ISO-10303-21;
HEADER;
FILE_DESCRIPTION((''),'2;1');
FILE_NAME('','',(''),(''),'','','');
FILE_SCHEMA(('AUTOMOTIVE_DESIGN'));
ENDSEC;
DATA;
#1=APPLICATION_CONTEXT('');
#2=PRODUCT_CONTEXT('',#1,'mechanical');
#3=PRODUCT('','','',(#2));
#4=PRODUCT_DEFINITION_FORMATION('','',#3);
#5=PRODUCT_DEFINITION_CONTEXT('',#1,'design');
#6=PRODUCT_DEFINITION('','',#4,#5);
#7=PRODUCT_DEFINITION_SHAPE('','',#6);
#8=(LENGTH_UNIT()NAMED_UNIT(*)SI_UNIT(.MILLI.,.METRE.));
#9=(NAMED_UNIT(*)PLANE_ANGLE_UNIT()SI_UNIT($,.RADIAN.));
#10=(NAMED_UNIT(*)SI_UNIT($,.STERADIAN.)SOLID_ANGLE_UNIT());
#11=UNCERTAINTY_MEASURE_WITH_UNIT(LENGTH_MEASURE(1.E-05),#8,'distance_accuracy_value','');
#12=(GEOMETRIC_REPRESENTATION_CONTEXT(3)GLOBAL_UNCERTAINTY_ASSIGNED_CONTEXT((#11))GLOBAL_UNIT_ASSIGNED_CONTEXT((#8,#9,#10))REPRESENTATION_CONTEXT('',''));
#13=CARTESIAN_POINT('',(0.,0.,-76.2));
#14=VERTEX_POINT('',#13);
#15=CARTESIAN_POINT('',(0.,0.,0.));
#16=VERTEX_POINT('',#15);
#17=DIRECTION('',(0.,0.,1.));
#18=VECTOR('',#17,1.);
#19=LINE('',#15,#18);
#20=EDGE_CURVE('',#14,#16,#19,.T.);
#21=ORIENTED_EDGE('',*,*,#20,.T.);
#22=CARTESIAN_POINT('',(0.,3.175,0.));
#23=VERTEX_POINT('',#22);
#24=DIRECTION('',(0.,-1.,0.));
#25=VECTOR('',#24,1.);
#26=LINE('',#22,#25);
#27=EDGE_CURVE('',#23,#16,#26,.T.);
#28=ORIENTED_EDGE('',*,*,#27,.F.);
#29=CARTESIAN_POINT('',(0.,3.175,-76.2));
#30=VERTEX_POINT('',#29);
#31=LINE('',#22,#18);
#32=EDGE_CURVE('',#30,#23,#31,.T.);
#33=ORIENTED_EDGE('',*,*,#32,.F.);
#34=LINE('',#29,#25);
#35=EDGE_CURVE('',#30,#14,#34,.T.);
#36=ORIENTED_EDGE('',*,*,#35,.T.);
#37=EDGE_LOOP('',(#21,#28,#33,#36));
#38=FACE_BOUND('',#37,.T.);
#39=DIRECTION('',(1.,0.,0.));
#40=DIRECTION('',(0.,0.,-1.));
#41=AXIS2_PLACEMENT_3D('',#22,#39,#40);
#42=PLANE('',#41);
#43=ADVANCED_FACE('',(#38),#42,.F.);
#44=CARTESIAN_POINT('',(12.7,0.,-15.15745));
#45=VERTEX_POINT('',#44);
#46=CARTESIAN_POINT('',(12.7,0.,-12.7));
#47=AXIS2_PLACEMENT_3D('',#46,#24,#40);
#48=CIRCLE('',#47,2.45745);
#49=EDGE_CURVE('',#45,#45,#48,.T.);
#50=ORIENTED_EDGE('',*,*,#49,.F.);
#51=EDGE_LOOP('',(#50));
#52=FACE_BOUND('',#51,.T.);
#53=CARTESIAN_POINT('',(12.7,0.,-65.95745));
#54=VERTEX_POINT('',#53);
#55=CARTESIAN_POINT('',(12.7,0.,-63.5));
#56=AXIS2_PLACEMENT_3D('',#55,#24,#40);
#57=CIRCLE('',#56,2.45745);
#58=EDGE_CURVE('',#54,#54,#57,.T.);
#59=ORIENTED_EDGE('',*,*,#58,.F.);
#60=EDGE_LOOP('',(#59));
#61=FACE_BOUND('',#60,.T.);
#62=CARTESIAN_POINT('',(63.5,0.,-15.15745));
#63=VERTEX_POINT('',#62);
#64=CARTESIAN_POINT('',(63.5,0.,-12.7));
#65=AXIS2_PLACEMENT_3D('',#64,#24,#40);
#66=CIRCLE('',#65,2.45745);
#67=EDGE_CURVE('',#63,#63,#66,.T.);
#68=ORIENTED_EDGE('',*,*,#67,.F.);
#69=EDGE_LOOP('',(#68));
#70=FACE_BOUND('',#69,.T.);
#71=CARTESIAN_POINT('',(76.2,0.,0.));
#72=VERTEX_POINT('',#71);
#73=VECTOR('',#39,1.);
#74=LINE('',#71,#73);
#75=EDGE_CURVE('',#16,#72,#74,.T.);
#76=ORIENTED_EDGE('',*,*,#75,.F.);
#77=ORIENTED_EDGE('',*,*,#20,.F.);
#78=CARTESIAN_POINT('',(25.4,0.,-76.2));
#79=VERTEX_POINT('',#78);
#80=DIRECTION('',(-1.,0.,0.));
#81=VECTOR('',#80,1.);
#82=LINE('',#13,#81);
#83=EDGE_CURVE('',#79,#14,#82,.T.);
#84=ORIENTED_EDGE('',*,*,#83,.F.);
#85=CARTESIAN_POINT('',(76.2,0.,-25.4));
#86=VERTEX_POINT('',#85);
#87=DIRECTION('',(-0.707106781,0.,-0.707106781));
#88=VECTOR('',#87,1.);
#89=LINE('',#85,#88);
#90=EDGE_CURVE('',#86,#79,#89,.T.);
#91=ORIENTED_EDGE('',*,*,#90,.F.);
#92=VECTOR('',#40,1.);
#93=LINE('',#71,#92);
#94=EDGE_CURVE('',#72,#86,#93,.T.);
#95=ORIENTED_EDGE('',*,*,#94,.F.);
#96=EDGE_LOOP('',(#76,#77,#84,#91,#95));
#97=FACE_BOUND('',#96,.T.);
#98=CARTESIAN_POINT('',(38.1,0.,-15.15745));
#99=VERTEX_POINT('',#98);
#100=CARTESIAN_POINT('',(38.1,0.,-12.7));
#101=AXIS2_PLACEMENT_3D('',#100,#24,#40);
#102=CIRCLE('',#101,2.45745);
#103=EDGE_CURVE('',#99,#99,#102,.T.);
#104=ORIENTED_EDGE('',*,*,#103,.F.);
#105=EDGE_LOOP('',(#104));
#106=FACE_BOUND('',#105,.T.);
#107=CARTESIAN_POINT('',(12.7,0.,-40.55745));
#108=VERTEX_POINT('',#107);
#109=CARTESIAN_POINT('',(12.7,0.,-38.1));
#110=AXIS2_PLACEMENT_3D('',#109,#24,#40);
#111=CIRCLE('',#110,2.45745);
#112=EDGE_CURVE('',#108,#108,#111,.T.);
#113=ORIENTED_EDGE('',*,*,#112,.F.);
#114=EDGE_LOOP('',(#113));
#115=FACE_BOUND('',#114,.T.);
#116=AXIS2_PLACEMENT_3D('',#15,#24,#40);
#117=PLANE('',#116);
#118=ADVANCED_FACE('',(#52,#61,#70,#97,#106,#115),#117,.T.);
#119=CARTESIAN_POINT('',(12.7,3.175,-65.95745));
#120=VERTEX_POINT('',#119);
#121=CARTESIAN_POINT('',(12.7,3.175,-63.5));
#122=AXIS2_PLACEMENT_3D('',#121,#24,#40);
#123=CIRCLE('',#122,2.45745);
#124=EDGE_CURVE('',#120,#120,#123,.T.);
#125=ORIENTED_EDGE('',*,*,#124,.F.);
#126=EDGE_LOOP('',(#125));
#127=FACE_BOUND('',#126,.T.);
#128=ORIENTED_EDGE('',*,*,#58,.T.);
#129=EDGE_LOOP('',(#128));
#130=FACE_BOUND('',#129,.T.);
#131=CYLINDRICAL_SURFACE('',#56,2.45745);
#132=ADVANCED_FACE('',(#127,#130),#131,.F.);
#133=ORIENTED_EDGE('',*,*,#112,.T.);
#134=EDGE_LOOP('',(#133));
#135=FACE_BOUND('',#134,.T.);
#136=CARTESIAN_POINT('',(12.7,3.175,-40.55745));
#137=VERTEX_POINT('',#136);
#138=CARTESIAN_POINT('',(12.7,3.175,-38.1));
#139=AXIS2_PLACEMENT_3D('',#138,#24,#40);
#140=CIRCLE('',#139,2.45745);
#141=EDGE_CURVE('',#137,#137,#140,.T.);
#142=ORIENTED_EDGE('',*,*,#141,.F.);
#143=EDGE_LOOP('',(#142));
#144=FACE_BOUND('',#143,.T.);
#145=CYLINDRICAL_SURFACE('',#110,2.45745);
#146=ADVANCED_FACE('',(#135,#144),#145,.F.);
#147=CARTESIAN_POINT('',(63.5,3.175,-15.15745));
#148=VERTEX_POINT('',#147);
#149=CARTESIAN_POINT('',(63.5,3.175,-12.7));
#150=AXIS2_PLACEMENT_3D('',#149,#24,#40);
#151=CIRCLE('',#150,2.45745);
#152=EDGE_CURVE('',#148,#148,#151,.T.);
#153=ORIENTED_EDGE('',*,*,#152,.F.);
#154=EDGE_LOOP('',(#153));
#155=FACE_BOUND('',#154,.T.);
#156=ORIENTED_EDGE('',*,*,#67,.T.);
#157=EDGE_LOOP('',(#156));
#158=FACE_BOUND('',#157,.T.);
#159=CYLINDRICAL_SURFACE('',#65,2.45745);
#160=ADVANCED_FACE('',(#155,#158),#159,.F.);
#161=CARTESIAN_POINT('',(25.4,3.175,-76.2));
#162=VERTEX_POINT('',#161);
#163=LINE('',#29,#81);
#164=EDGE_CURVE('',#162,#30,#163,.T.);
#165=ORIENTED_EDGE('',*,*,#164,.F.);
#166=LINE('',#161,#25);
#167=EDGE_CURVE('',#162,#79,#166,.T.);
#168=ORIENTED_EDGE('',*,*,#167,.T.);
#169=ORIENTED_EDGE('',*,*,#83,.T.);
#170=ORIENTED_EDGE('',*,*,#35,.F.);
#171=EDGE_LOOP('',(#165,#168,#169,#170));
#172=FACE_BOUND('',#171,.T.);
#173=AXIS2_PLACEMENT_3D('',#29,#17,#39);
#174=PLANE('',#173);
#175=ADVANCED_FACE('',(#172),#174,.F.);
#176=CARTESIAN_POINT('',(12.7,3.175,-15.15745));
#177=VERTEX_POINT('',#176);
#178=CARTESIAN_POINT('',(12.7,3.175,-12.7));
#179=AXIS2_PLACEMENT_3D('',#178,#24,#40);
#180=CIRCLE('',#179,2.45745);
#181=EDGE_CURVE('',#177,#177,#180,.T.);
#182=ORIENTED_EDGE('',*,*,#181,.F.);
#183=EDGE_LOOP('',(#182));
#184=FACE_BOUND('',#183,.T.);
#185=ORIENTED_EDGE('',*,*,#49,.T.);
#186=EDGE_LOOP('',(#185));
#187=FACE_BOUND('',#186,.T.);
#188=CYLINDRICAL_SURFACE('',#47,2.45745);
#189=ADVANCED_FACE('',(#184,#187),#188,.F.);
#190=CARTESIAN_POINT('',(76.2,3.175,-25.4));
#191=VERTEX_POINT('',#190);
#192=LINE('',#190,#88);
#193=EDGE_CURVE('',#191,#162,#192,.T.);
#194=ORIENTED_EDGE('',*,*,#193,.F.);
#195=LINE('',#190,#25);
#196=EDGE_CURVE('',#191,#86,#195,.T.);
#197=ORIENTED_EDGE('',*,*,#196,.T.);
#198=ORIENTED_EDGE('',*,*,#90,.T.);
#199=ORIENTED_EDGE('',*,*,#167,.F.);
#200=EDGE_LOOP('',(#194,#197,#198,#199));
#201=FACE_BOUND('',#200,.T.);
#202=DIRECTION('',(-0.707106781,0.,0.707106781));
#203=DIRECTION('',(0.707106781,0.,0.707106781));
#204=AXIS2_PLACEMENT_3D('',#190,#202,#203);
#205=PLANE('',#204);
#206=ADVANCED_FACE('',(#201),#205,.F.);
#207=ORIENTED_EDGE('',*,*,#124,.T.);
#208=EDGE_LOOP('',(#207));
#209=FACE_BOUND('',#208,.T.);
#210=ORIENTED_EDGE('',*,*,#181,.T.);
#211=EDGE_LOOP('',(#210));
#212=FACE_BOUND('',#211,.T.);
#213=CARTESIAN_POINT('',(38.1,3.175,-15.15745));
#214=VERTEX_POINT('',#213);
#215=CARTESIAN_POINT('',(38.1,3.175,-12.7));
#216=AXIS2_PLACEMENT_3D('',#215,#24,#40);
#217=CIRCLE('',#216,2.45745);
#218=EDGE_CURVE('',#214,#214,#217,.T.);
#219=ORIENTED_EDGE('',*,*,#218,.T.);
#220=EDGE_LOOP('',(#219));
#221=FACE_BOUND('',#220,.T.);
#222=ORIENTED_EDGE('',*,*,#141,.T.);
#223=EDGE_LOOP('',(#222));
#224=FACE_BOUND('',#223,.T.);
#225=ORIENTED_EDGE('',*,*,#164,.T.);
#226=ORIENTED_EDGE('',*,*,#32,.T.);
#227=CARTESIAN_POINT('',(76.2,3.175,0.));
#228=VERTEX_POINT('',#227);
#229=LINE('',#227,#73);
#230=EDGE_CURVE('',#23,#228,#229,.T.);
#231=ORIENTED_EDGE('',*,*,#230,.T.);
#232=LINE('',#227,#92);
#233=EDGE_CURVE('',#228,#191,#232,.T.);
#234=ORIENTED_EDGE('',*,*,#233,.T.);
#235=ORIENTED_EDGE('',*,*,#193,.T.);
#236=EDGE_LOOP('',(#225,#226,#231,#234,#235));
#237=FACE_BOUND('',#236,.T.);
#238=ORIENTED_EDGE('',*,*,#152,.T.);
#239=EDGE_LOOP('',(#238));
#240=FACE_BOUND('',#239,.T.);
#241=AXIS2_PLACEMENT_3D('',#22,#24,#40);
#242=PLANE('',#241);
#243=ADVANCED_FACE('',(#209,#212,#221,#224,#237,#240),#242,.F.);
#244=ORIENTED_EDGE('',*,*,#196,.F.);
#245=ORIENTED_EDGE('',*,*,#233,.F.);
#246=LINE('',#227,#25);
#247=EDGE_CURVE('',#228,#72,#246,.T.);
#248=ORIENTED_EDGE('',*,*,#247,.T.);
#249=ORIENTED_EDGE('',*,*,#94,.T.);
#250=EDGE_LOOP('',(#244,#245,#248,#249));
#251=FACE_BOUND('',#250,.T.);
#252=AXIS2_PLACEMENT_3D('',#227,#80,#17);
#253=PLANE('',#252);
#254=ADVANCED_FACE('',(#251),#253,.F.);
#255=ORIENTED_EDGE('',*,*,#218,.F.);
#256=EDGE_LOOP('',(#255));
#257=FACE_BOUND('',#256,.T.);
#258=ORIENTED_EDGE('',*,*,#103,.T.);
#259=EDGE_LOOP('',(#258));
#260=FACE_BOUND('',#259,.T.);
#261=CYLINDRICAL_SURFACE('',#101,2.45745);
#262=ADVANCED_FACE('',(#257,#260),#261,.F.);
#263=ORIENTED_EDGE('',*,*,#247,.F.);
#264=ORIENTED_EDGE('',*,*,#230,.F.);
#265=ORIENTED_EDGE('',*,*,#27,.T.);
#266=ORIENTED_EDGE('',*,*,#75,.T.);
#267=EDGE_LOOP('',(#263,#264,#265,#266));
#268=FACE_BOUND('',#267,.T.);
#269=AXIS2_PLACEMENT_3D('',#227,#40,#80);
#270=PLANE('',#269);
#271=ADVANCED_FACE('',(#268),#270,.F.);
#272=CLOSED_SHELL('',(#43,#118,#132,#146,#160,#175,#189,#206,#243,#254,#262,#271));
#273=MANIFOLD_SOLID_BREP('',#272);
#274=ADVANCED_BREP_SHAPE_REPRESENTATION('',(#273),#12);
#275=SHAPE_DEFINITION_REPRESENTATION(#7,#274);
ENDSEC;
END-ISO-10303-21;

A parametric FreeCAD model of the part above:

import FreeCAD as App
import Part
import Sketcher
Q = App.Units.Quantity


def add_polygon(sketch, points):
    """Adds a closed chain of lines whose ends are joined by coincident constraints."""
    first, n = sketch.GeometryCount, len(points)
    for a, b in zip(points, points[1:] + points[:1]):
        sketch.addGeometry(Part.LineSegment(App.Vector(*a, 0), App.Vector(*b, 0)), False)
    for i in range(n):
        sketch.addConstraint(Sketcher.Constraint("Coincident", first + i, 2, first + (i + 1) % n, 1))

doc = App.newDocument("Part")
body = doc.addObject("PartDesign::Body", "Body")

sketch1 = body.newObject("Sketcher::SketchObject", "Sketch")
sketch1.AttachmentSupport = (doc.getObject("XZ_Plane"), [""])
sketch1.MapMode = "FlatFace"
add_polygon(sketch1, [(0, -76), (0, 0), (76, 0), (76, -25), (25, -76)])
sketch1.addConstraint([
    Sketcher.Constraint("Vertical", 0),
    Sketcher.Constraint("Horizontal", 1),
    Sketcher.Constraint("Vertical", 2),
    Sketcher.Constraint("Horizontal", 4),
    Sketcher.Constraint("Coincident", 0, 2, -1, 1),
    Sketcher.Constraint("Equal", 1, 0),
    Sketcher.Constraint("Equal", 4, 2),
    Sketcher.Constraint("DistanceX", 1, 1, 1, 2, Q("3 in")),
    Sketcher.Constraint("DistanceX", 4, 2, 4, 1, Q("1 in")),
])
pad1 = body.newObject("PartDesign::Pad", "Pad")
pad1.Profile = sketch1
pad1.Length = Q("0.125 in")
pad1.Reversed = True

sketch2 = body.newObject("Sketcher::SketchObject", "Sketch001")
sketch2.AttachmentSupport = (doc.getObject("XZ_Plane"), [""])
sketch2.MapMode = "FlatFace"
sketch2.addGeometry([
    Part.Circle(App.Vector(12.7, -12.7, 0), App.Vector(0, 0, 1), 2.5),
    Part.Circle(App.Vector(12.7, -38.1, 0), App.Vector(0, 0, 1), 2.5),
    Part.Circle(App.Vector(12.7, -63.5, 0), App.Vector(0, 0, 1), 2.5),
    Part.Circle(App.Vector(38.1, -12.7, 0), App.Vector(0, 0, 1), 2.5),
    Part.Circle(App.Vector(63.5, -12.7, 0), App.Vector(0, 0, 1), 2.5),
], False)
sketch2.addConstraint([
    Sketcher.Constraint("Equal", 0, 1),
    Sketcher.Constraint("Equal", 1, 2),
    Sketcher.Constraint("Equal", 2, 3),
    Sketcher.Constraint("Equal", 3, 4),
    Sketcher.Constraint("Horizontal", 0, 3, 3, 3),
    Sketcher.Constraint("Horizontal", 3, 3, 4, 3),
    Sketcher.Constraint("Vertical", 0, 3, 1, 3),
    Sketcher.Constraint("Vertical", 1, 3, 2, 3),
    Sketcher.Constraint("DistanceY", 1, 3, 0, 3, Q("1 in")),
    Sketcher.Constraint("DistanceY", 2, 3, 1, 3, Q("1 in")),
    Sketcher.Constraint("DistanceX", 0, 3, 3, 3, Q("1 in")),
    Sketcher.Constraint("DistanceX", 3, 3, 4, 3, Q("1 in")),
    Sketcher.Constraint("Diameter", 0, Q("0.1935 in")),
    Sketcher.Constraint("DistanceX", -1, 1, 0, 3, Q("0.5 in")),
    Sketcher.Constraint("DistanceY", 0, 3, -1, 1, Q("0.5 in")),
])
doc.recompute()
hole = body.newObject("PartDesign::Hole", "Hole")
hole.Profile = sketch2
hole.ThreadType = "None"
hole.Diameter = Q("0.1935 in")
hole.DepthType = "Dimension"
hole.Depth = Q("1 in")
hole.DrillPoint = "Angled"
hole.DrillPointAngle = 118

doc.recompute()
